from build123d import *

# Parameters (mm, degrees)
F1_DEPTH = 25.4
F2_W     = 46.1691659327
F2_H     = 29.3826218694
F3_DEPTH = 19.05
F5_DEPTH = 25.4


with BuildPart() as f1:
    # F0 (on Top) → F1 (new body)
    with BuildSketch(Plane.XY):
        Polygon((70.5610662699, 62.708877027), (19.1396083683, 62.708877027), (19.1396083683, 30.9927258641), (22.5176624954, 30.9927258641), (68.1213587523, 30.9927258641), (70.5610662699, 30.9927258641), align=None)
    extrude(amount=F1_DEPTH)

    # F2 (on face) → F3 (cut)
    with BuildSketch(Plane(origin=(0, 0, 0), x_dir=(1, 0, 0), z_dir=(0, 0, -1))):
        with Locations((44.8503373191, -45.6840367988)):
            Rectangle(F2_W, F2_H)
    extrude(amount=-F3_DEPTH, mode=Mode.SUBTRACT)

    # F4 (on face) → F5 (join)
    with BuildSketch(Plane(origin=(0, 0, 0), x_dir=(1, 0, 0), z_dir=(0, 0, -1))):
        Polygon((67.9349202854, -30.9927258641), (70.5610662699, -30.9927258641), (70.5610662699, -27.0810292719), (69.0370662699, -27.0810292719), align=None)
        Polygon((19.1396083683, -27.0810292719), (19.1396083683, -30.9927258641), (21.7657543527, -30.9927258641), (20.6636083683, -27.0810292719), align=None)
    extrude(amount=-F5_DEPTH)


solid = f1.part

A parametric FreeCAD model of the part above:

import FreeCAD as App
import Part
import Sketcher

V = App.Vector
Q = App.Units.Quantity

doc = App.newDocument("Part")
body = doc.addObject("PartDesign::Body", "Body")

# Sketch on XY plane
sketch1 = body.newObject("Sketcher::SketchObject", "Sketch")
sketch1.AttachmentSupport = (doc.getObject("XY_Plane"), [""])
sketch1.MapMode = "FlatFace"
sketch1.addGeometry([
    Part.LineSegment(V(71, 63, 0), V(19, 63, 0)),
    Part.LineSegment(V(19, 63, 0), V(19, 31, 0)),
    Part.LineSegment(V(19, 31, 0), V(71, 31, 0)),
    Part.LineSegment(V(71, 31, 0), V(71, 63, 0)),
], False)
sketch1.addConstraint([
    Sketcher.Constraint("Coincident", 0, 2, 1, 1),
    Sketcher.Constraint("Coincident", 1, 2, 2, 1),
    Sketcher.Constraint("Coincident", 2, 2, 3, 1),
    Sketcher.Constraint("Coincident", 3, 2, 0, 1),
    Sketcher.Constraint("Horizontal", 0),
    Sketcher.Constraint("Vertical", 1),
    Sketcher.Constraint("Horizontal", 2),
    Sketcher.Constraint("Vertical", 3),
    Sketcher.Constraint("DistanceY", 1, 2, 1, 1, Q("31.716151 mm")),
    Sketcher.Constraint("DistanceX", 0, 2, 0, 1, Q("51.421458 mm")),
    Sketcher.Constraint("DistanceX", -1, 1, 0, 2, Q("19.139608 mm")),
    Sketcher.Constraint("DistanceY", -1, 1, 0, 2, Q("62.708877 mm")),
])
pad1 = body.newObject("PartDesign::Pad", "Pad")
pad1.Profile = sketch1
pad1.Length = Q("1 in")

# Sketch on XY plane
sketch2 = body.newObject("Sketcher::SketchObject", "Sketch001")
sketch2.AttachmentSupport = (doc.getObject("XY_Plane"), [""])
sketch2.MapMode = "FlatFace"
sketch2.addGeometry([
    Part.LineSegment(V(22, 31, 0), V(22, 60, 0)),
    Part.LineSegment(V(22, 60, 0), V(68, 60, 0)),
    Part.LineSegment(V(68, 60, 0), V(68, 31, 0)),
    Part.LineSegment(V(68, 31, 0), V(22, 31, 0)),
], False)
sketch2.addConstraint([
    Sketcher.Constraint("Coincident", 0, 2, 1, 1),
    Sketcher.Constraint("Coincident", 1, 2, 2, 1),
    Sketcher.Constraint("Coincident", 2, 2, 3, 1),
    Sketcher.Constraint("Coincident", 3, 2, 0, 1),
    Sketcher.Constraint("Vertical", 0),
    Sketcher.Constraint("Horizontal", 1),
    Sketcher.Constraint("Vertical", 2),
    Sketcher.Constraint("Horizontal", 3),
    Sketcher.Constraint("DistanceY", 0, 1, 0, 2, Q("29.382622 mm")),
    Sketcher.Constraint("DistanceX", 1, 1, 1, 2, Q("46.169166 mm")),
    Sketcher.Constraint("DistanceX", -1, 1, 1, 2, Q("67.93492 mm")),
    Sketcher.Constraint("DistanceY", -1, 1, 0, 2, Q("60.375348 mm")),
])
pocket1 = body.newObject("PartDesign::Pocket", "Pocket")
pocket1.Profile = sketch2
pocket1.Length = Q("0.75 in")
pocket1.Reversed = True

# Sketch on XY plane
sketch3 = body.newObject("Sketcher::SketchObject", "Sketch002")
sketch3.AttachmentSupport = (doc.getObject("XY_Plane"), [""])
sketch3.MapMode = "FlatFace"
sketch3.addGeometry([
    Part.LineSegment(V(67.9, 31, 0), V(70.6, 31, 0)),  # 0
    Part.LineSegment(V(70.6, 31, 0), V(70.6, 27.1, 0)),  # 1
    Part.LineSegment(V(70.6, 27.1, 0), V(69, 27.1, 0)),  # 2
    Part.LineSegment(V(69, 27.1, 0), V(67.9, 31, 0)),  # 3
    Part.LineSegment(V(19.1, 27.1, 0), V(19.1, 31, 0)),  # 4
    Part.LineSegment(V(19.1, 31, 0), V(21.8, 31, 0)),  # 5
    Part.LineSegment(V(21.8, 31, 0), V(20.7, 27.1, 0)),  # 6
    Part.LineSegment(V(20.7, 27.1, 0), V(19.1, 27.1, 0)),  # 7
], False)
sketch3.addConstraint([
    Sketcher.Constraint("Coincident", 0, 2, 1, 1),
    Sketcher.Constraint("Coincident", 1, 2, 2, 1),
    Sketcher.Constraint("Coincident", 2, 2, 3, 1),
    Sketcher.Constraint("Coincident", 3, 2, 0, 1),
    Sketcher.Constraint("Coincident", 4, 2, 5, 1),
    Sketcher.Constraint("Coincident", 5, 2, 6, 1),
    Sketcher.Constraint("Coincident", 6, 2, 7, 1),
    Sketcher.Constraint("Coincident", 7, 2, 4, 1),
    Sketcher.Constraint("Horizontal", 0),
    Sketcher.Constraint("Vertical", 1),
    Sketcher.Constraint("Horizontal", 2),
    Sketcher.Constraint("Vertical", 4),
    Sketcher.Constraint("Horizontal", 5),
    Sketcher.Constraint("Horizontal", 7),
    Sketcher.Constraint("Horizontal", 3, 2, 4, 2),
    Sketcher.Constraint("Horizontal", 2, 2, 6, 2),
    Sketcher.Constraint("Equal", 0, 5),
    Sketcher.Constraint("Equal", 2, 7),
    Sketcher.Constraint("DistanceX", 2, 2, 2, 1, Q("0.06 in")),
    Sketcher.Constraint("Distance", 3, Q("0.16 in")),
    Sketcher.Constraint("DistanceX", 0, 1, 0, 2, Q("2.626146 mm")),
    Sketcher.Constraint("DistanceY", -1, 1, 1, 2, Q("27.081029 mm")),
    Sketcher.Constraint("DistanceX", -1, 1, 3, 2, Q("67.93492 mm")),
    Sketcher.Constraint("DistanceX", -1, 1, 4, 2, Q("19.139608 mm")),
])
pad2 = body.newObject("PartDesign::Pad", "Pad001")
pad2.Profile = sketch3
pad2.Length = Q("1 in")

doc.recompute()
